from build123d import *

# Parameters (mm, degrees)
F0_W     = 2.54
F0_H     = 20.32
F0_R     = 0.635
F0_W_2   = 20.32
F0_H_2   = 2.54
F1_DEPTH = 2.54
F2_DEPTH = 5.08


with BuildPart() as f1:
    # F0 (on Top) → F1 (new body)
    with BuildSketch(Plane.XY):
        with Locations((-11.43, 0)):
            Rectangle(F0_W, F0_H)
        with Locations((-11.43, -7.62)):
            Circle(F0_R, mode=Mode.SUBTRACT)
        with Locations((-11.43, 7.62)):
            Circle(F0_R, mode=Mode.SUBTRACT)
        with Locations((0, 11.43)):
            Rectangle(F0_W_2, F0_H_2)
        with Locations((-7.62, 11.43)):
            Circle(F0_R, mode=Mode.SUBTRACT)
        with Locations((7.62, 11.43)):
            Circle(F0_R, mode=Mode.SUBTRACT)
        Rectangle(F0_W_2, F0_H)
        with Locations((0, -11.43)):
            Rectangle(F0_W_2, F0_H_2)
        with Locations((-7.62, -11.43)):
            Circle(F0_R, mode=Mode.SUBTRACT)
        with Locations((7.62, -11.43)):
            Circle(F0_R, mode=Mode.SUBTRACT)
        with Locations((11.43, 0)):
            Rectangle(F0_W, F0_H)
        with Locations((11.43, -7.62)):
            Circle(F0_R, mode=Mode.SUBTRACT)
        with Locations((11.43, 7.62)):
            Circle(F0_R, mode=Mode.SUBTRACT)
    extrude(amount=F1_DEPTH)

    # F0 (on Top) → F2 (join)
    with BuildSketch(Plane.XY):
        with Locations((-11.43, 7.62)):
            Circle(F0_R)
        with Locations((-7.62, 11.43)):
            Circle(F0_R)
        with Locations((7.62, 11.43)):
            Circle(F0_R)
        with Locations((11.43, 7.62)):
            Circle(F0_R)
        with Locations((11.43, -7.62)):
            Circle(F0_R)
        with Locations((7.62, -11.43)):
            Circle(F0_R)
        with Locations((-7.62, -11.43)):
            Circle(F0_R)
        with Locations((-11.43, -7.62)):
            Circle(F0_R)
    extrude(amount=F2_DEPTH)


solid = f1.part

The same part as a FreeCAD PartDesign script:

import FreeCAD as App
import Part
import Sketcher
from FreeCAD import Vector
Q = App.Units.Quantity

doc = App.newDocument("Part")
body = doc.addObject("PartDesign::Body", "Body")

sketch1 = doc.addObject("Sketcher::SketchObject", "Sketch")
body.addObject(sketch1)
sketch1.AttachmentSupport = (doc.XY_Plane, [""])
sketch1.MapMode = "FlatFace"
sketch1.addGeometry(Part.LineSegment(Vector(-12.7, 10.2, 0), Vector(-12.7, -10.2, 0)), False)
sketch1.addGeometry(Part.LineSegment(Vector(-12.7, -10.2, 0), Vector(-10.2, -10.2, 0)), False)
sketch1.addGeometry(Part.LineSegment(Vector(-10.2, -10.2, 0), Vector(-10.2, -12.7, 0)), False)
sketch1.addGeometry(Part.LineSegment(Vector(-10.2, -12.7, 0), Vector(10.2, -12.7, 0)), False)
sketch1.addGeometry(Part.LineSegment(Vector(10.2, -12.7, 0), Vector(10.2, -10.2, 0)), False)
sketch1.addGeometry(Part.LineSegment(Vector(10.2, -10.2, 0), Vector(12.7, -10.2, 0)), False)
sketch1.addGeometry(Part.LineSegment(Vector(12.7, -10.2, 0), Vector(12.7, 10.2, 0)), False)
sketch1.addGeometry(Part.LineSegment(Vector(12.7, 10.2, 0), Vector(10.2, 10.2, 0)), False)
sketch1.addGeometry(Part.LineSegment(Vector(10.2, 10.2, 0), Vector(10.2, 12.7, 0)), False)
sketch1.addGeometry(Part.LineSegment(Vector(10.2, 12.7, 0), Vector(-10.2, 12.7, 0)), False)
sketch1.addGeometry(Part.LineSegment(Vector(-10.2, 12.7, 0), Vector(-10.2, 10.2, 0)), False)
sketch1.addGeometry(Part.LineSegment(Vector(-10.2, 10.2, 0), Vector(-12.7, 10.2, 0)), False)
sketch1.addGeometry(Part.Circle(Vector(-7.6, -11.4, 0), Vector(0, 0, 1), 0.6), False)
sketch1.addGeometry(Part.Circle(Vector(-11.4, -7.6, 0), Vector(0, 0, 1), 0.6), False)
sketch1.addGeometry(Part.Circle(Vector(7.6, -11.4, 0), Vector(0, 0, 1), 0.6), False)
sketch1.addGeometry(Part.Circle(Vector(11.4, -7.6, 0), Vector(0, 0, 1), 0.6), False)
sketch1.addGeometry(Part.Circle(Vector(-11.4, 7.6, 0), Vector(0, 0, 1), 0.6), False)
sketch1.addGeometry(Part.Circle(Vector(-7.6, 11.4, 0), Vector(0, 0, 1), 0.6), False)
sketch1.addGeometry(Part.Circle(Vector(11.4, 7.6, 0), Vector(0, 0, 1), 0.6), False)
sketch1.addGeometry(Part.Circle(Vector(7.6, 11.4, 0), Vector(0, 0, 1), 0.6), False)
sketch1.addConstraint(Sketcher.Constraint("Coincident", 0, 2, 1, 1))
sketch1.addConstraint(Sketcher.Constraint("Coincident", 1, 2, 2, 1))
sketch1.addConstraint(Sketcher.Constraint("Coincident", 2, 2, 3, 1))
sketch1.addConstraint(Sketcher.Constraint("Coincident", 3, 2, 4, 1))
sketch1.addConstraint(Sketcher.Constraint("Coincident", 4, 2, 5, 1))
sketch1.addConstraint(Sketcher.Constraint("Coincident", 5, 2, 6, 1))
sketch1.addConstraint(Sketcher.Constraint("Coincident", 6, 2, 7, 1))
sketch1.addConstraint(Sketcher.Constraint("Coincident", 7, 2, 8, 1))
sketch1.addConstraint(Sketcher.Constraint("Coincident", 8, 2, 9, 1))
sketch1.addConstraint(Sketcher.Constraint("Coincident", 9, 2, 10, 1))
sketch1.addConstraint(Sketcher.Constraint("Coincident", 10, 2, 11, 1))
sketch1.addConstraint(Sketcher.Constraint("Coincident", 11, 2, 0, 1))
sketch1.addConstraint(Sketcher.Constraint("Vertical", 0))
sketch1.addConstraint(Sketcher.Constraint("Horizontal", 1))
sketch1.addConstraint(Sketcher.Constraint("Vertical", 2))
sketch1.addConstraint(Sketcher.Constraint("Horizontal", 3))
sketch1.addConstraint(Sketcher.Constraint("Vertical", 4))
sketch1.addConstraint(Sketcher.Constraint("Horizontal", 5))
sketch1.addConstraint(Sketcher.Constraint("Vertical", 6))
sketch1.addConstraint(Sketcher.Constraint("Horizontal", 7))
sketch1.addConstraint(Sketcher.Constraint("Vertical", 8))
sketch1.addConstraint(Sketcher.Constraint("Horizontal", 9))
sketch1.addConstraint(Sketcher.Constraint("Vertical", 10))
sketch1.addConstraint(Sketcher.Constraint("Horizontal", 11))
sketch1.addConstraint(Sketcher.Constraint("Equal", 12, 13))
sketch1.addConstraint(Sketcher.Constraint("Equal", 13, 14))
sketch1.addConstraint(Sketcher.Constraint("Equal", 14, 15))
sketch1.addConstraint(Sketcher.Constraint("Equal", 15, 16))
sketch1.addConstraint(Sketcher.Constraint("Equal", 16, 17))
sketch1.addConstraint(Sketcher.Constraint("Equal", 17, 18))
sketch1.addConstraint(Sketcher.Constraint("Equal", 18, 19))
sketch1.addConstraint(Sketcher.Constraint("Symmetric", 15, 3, 16, 3, -1, 1))
sketch1.addConstraint(Sketcher.Constraint("Symmetric", 14, 3, 17, 3, -1, 1))
sketch1.addConstraint(Sketcher.Constraint("Symmetric", 13, 3, 18, 3, -1, 1))
sketch1.addConstraint(Sketcher.Constraint("Symmetric", 12, 3, 19, 3, -1, 1))
sketch1.addConstraint(Sketcher.Constraint("Symmetric", 0, 2, 6, 2, -1, 1))
sketch1.addConstraint(Sketcher.Constraint("Symmetric", 2, 2, 8, 2, -1, 1))
sketch1.addConstraint(Sketcher.Constraint("Symmetric", 4, 2, 10, 2, -1, 1))
sketch1.addConstraint(Sketcher.Constraint("Symmetric", 12, 3, 14, 3, -2))
sketch1.addConstraint(Sketcher.Constraint("Symmetric", 13, 3, 15, 3, -2))
sketch1.addConstraint(Sketcher.Constraint("Symmetric", 1, 2, 4, 2, -2))
sketch1.addConstraint(Sketcher.Constraint("Equal", 9, 0))
sketch1.addConstraint(Sketcher.Constraint("Equal", 11, 2))
sketch1.addConstraint(Sketcher.Constraint("Diameter", 12, Q("0.05 in")))
sketch1.addConstraint(Sketcher.Constraint("DistanceX", 1, 1, 1, 2, Q("0.1 in")))
sketch1.addConstraint(Sketcher.Constraint("DistanceX", 3, 1, 3, 2, Q("0.8 in")))
sketch1.addConstraint(Sketcher.Constraint("DistanceX", 12, 3, -1, 1, Q("0.3 in")))
sketch1.addConstraint(Sketcher.Constraint("DistanceY", 13, 3, -1, 1, Q("0.3 in")))
sketch1.addConstraint(Sketcher.Constraint("DistanceX", 13, 3, 15, 3, Q("0.9 in")))
sketch1.addConstraint(Sketcher.Constraint("DistanceY", 12, 3, 17, 3, Q("0.9 in")))
pad1 = doc.addObject("PartDesign::Pad", "Pad")
body.addObject(pad1)
pad1.Profile = sketch1
pad1.Length = Q("0.1 in")

sketch2 = doc.addObject("Sketcher::SketchObject", "Sketch001")
body.addObject(sketch2)
sketch2.AttachmentSupport = (doc.XY_Plane, [""])
sketch2.MapMode = "FlatFace"
sketch2.addGeometry(Part.Circle(Vector(-11.4, 7.6, 0), Vector(0, 0, 1), 0.6), False)
sketch2.addGeometry(Part.Circle(Vector(-7.6, 11.4, 0), Vector(0, 0, 1), 0.6), False)
sketch2.addGeometry(Part.Circle(Vector(7.6, 11.4, 0), Vector(0, 0, 1), 0.6), False)
sketch2.addGeometry(Part.Circle(Vector(11.4, 7.6, 0), Vector(0, 0, 1), 0.6), False)
sketch2.addGeometry(Part.Circle(Vector(11.4, -7.6, 0), Vector(0, 0, 1), 0.6), False)
sketch2.addGeometry(Part.Circle(Vector(7.6, -11.4, 0), Vector(0, 0, 1), 0.6), False)
sketch2.addGeometry(Part.Circle(Vector(-7.6, -11.4, 0), Vector(0, 0, 1), 0.6), False)
sketch2.addGeometry(Part.Circle(Vector(-11.4, -7.6, 0), Vector(0, 0, 1), 0.6), False)
sketch2.addConstraint(Sketcher.Constraint("Equal", 0, 1))
sketch2.addConstraint(Sketcher.Constraint("Equal", 1, 2))
sketch2.addConstraint(Sketcher.Constraint("Equal", 2, 3))
sketch2.addConstraint(Sketcher.Constraint("Equal", 3, 4))
sketch2.addConstraint(Sketcher.Constraint("Equal", 4, 5))
sketch2.addConstraint(Sketcher.Constraint("Equal", 5, 6))
sketch2.addConstraint(Sketcher.Constraint("Equal", 6, 7))
sketch2.addConstraint(Sketcher.Constraint("Symmetric", 0, 3, 4, 3, -1, 1))
sketch2.addConstraint(Sketcher.Constraint("Symmetric", 1, 3, 5, 3, -1, 1))
sketch2.addConstraint(Sketcher.Constraint("Symmetric", 2, 3, 6, 3, -1, 1))
sketch2.addConstraint(Sketcher.Constraint("Symmetric", 3, 3, 7, 3, -1, 1))
sketch2.addConstraint(Sketcher.Constraint("Symmetric", 1, 3, 2, 3, -2))
sketch2.addConstraint(Sketcher.Constraint("Symmetric", 0, 3, 3, 3, -2))
sketch2.addConstraint(Sketcher.Constraint("Diameter", 0, Q("0.05 in")))
sketch2.addConstraint(Sketcher.Constraint("DistanceY", -1, 1, 0, 3, Q("0.3 in")))
sketch2.addConstraint(Sketcher.Constraint("DistanceX", 1, 3, -1, 1, Q("0.3 in")))
sketch2.addConstraint(Sketcher.Constraint("DistanceX", 0, 3, 3, 3, Q("0.9 in")))
sketch2.addConstraint(Sketcher.Constraint("DistanceY", 5, 3, 2, 3, Q("0.9 in")))
pad2 = doc.addObject("PartDesign::Pad", "Pad001")
body.addObject(pad2)
pad2.Profile = sketch2
pad2.Length = Q("0.2 in")

doc.recompute()
